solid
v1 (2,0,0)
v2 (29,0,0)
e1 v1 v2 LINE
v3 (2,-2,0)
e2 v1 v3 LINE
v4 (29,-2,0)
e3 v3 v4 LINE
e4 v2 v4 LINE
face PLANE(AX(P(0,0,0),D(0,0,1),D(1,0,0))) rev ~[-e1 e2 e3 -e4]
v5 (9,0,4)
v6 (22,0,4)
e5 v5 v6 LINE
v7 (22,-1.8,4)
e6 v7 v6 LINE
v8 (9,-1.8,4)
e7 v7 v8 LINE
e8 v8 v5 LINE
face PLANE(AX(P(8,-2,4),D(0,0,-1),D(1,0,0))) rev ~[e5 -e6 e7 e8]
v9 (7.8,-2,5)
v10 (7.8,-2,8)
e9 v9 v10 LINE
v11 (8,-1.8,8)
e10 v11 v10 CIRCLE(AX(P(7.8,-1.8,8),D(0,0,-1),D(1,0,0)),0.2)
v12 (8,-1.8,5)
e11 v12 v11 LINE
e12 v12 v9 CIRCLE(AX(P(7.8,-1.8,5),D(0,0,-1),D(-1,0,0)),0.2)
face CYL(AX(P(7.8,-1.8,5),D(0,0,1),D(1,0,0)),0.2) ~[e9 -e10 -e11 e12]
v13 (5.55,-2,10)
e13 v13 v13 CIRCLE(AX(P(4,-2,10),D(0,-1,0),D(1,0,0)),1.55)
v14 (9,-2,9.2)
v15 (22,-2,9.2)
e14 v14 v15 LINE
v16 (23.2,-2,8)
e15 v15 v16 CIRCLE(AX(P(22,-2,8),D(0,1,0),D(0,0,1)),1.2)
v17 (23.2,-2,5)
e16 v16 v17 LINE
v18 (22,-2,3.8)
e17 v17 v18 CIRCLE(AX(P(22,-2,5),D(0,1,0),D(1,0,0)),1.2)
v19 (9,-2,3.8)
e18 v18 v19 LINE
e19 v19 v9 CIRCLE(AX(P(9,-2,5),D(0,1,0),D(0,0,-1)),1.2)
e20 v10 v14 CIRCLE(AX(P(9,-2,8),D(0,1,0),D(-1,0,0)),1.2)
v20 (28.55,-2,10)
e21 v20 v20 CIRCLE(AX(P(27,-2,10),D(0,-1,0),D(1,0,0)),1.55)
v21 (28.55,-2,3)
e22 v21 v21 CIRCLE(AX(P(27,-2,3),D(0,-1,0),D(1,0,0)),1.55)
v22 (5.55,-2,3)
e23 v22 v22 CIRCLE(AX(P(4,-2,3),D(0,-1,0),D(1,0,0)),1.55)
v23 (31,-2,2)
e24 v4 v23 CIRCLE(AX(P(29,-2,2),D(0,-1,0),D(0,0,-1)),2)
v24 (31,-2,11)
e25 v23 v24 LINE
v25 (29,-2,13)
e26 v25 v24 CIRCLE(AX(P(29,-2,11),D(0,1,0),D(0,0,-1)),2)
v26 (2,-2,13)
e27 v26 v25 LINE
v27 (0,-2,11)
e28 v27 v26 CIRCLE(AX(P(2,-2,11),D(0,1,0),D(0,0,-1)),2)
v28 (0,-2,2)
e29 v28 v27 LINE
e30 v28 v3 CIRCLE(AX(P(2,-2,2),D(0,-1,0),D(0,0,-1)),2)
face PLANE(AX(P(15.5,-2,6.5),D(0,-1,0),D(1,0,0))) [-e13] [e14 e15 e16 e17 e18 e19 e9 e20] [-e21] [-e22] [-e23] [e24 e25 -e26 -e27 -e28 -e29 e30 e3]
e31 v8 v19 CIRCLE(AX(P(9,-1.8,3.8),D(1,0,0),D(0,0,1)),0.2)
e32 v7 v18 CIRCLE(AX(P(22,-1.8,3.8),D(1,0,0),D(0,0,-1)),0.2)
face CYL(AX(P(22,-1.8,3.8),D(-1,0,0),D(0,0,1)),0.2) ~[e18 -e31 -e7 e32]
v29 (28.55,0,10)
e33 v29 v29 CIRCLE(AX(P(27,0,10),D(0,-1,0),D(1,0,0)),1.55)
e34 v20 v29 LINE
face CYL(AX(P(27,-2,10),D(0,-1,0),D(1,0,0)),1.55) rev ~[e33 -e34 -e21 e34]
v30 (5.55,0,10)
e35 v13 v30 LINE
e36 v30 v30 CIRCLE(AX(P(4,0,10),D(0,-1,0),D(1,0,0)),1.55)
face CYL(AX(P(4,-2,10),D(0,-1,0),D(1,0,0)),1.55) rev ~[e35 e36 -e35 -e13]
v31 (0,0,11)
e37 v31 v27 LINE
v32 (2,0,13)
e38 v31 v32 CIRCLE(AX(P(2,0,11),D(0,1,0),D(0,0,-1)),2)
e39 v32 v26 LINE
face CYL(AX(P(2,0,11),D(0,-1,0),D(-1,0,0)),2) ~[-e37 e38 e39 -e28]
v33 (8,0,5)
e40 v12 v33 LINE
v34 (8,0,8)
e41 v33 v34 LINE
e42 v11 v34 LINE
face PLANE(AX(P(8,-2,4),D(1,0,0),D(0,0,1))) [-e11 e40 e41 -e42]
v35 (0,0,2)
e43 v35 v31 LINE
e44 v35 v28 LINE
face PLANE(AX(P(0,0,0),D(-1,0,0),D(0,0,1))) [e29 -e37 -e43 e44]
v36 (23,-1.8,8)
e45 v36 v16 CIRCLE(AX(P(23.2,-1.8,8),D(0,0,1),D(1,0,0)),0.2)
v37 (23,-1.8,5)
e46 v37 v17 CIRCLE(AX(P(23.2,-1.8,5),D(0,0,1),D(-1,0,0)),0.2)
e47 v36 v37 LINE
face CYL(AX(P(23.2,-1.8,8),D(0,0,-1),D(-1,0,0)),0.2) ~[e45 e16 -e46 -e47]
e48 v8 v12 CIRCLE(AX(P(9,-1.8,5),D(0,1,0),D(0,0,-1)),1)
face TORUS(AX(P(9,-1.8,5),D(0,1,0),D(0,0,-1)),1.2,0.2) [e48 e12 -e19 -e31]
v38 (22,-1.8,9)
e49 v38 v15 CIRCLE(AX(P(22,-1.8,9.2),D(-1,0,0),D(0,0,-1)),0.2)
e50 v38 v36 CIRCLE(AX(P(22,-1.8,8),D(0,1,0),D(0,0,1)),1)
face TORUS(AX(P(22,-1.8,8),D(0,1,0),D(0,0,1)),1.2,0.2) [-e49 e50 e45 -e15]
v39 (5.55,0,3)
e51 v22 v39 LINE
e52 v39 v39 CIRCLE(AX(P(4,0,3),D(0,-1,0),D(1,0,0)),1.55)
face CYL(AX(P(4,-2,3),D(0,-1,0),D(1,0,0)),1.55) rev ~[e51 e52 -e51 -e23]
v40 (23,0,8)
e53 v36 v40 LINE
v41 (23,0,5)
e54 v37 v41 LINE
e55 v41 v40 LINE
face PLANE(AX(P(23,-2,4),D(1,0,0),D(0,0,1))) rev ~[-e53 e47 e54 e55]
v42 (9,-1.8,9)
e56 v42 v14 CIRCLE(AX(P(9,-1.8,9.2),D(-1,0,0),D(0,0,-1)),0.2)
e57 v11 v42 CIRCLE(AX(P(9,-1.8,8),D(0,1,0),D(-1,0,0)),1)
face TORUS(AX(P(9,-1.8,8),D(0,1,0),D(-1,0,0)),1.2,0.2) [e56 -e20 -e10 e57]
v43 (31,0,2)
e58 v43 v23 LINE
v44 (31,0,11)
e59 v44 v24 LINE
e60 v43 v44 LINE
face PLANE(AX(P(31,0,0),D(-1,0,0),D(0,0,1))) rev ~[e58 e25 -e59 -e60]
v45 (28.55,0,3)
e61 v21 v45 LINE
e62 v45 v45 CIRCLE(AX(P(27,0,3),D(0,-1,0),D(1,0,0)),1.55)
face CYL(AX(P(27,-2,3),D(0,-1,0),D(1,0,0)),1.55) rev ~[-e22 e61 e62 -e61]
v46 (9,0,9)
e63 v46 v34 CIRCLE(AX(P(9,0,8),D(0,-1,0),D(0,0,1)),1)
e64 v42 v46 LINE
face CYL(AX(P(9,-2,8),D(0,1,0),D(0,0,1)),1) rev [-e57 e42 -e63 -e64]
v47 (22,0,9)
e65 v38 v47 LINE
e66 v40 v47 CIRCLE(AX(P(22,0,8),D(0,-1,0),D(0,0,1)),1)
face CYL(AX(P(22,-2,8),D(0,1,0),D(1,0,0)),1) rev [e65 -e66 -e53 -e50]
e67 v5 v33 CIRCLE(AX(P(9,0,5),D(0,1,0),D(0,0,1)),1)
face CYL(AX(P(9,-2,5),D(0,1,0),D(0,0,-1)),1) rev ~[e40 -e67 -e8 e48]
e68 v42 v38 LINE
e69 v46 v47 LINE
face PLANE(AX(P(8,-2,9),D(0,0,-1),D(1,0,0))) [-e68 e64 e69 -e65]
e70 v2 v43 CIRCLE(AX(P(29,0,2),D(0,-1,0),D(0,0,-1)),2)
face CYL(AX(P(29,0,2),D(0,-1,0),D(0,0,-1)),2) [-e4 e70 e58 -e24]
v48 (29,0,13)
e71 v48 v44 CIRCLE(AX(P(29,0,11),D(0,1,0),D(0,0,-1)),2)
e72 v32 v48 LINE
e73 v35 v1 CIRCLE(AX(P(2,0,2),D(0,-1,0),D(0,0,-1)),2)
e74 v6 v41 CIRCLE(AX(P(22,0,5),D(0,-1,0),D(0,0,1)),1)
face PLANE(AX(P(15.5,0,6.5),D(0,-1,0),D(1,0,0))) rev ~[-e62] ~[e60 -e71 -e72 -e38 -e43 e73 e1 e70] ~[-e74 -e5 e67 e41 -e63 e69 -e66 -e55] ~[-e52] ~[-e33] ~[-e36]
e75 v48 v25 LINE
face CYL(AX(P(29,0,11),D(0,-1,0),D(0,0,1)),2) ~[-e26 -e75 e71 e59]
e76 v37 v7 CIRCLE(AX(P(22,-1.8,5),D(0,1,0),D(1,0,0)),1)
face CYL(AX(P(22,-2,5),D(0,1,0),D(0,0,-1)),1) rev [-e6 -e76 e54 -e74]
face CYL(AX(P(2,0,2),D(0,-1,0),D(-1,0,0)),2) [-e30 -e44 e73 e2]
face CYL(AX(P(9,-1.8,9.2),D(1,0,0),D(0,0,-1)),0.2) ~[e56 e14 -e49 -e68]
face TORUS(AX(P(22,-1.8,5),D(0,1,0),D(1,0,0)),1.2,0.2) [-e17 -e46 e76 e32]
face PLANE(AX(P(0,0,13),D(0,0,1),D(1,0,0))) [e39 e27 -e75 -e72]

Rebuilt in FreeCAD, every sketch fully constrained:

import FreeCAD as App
import Part
import Sketcher

V = App.Vector


def edges_at(feature, points):
    """Names of the edges that pass closest to the given points."""
    edges = feature.Shape.Edges
    near = lambda p: min(range(len(edges)), key=lambda i: edges[i].distToShape(Part.Vertex(*p))[0])
    return sorted({f"Edge{near(p) + 1}" for p in points})

doc = App.newDocument("Part")
body = doc.addObject("PartDesign::Body", "Body")

# Sketch on XZ plane
sketch1 = body.newObject("Sketcher::SketchObject", "Sketch")
sketch1.AttachmentSupport = (doc.getObject("XZ_Plane"), [""])
sketch1.MapMode = "FlatFace"
sketch1.addGeometry([
    Part.LineSegment(V(0, 13, 0), V(0, 0, 0)),
    Part.LineSegment(V(0, 0, 0), V(31, 0, 0)),
    Part.LineSegment(V(31, 0, 0), V(31, 13, 0)),
    Part.LineSegment(V(31, 13, 0), V(0, 13, 0)),
], False)
sketch1.addConstraint([
    Sketcher.Constraint("Coincident", 0, 2, 1, 1),
    Sketcher.Constraint("Coincident", 1, 2, 2, 1),
    Sketcher.Constraint("Coincident", 2, 2, 3, 1),
    Sketcher.Constraint("Coincident", 3, 2, 0, 1),
    Sketcher.Constraint("Vertical", 0),
    Sketcher.Constraint("Horizontal", 1),
    Sketcher.Constraint("Vertical", 2),
    Sketcher.Constraint("Horizontal", 3),
    Sketcher.Constraint("Coincident", 0, 2, -1, 1),
    Sketcher.Constraint("DistanceX", 1, 1, 1, 2, 31.0),
    Sketcher.Constraint("DistanceY", 0, 2, 0, 1, 13.0),
])
pad1 = body.newObject("PartDesign::Pad", "Pad")
pad1.Profile = sketch1
pad1.Length = 2

# Sketch on XZ plane
sketch2 = body.newObject("Sketcher::SketchObject", "Sketch001")
sketch2.AttachmentSupport = (doc.getObject("XZ_Plane"), [""])
sketch2.MapMode = "FlatFace"
sketch2.AttachmentOffset = App.Placement(V(0, 0, 2), App.Rotation())
sketch2.addGeometry([
    Part.Circle(V(4, 10, 0), V(0, 0, 1), 1.55),
    Part.Circle(V(4, 3, 0), V(0, 0, 1), 1.55),
    Part.Circle(V(27, 10, 0), V(0, 0, 1), 1.55),
    Part.Circle(V(27, 3, 0), V(0, 0, 1), 1.55),
], False)
sketch2.addConstraint([
    Sketcher.Constraint("Equal", 0, 1),
    Sketcher.Constraint("Equal", 1, 2),
    Sketcher.Constraint("Equal", 2, 3),
    Sketcher.Constraint("Horizontal", 0, 3, 2, 3),
    Sketcher.Constraint("Horizontal", 1, 3, 3, 3),
    Sketcher.Constraint("Vertical", 0, 3, 1, 3),
    Sketcher.Constraint("Vertical", 2, 3, 3, 3),
    Sketcher.Constraint("Diameter", 0, 3.1),
    Sketcher.Constraint("DistanceX", -1, 1, 0, 3, 4.0),
    Sketcher.Constraint("DistanceY", -1, 1, 0, 3, 10.0),
    Sketcher.Constraint("DistanceY", -1, 1, 1, 3, 3.0),
    Sketcher.Constraint("DistanceX", -1, 1, 2, 3, 27.0),
])
pocket1 = body.newObject("PartDesign::Pocket", "Pocket")
pocket1.Profile = sketch2
pocket1.Length = 25
doc.recompute()

fillet = body.newObject("PartDesign::Fillet", "Fillet")
fillet.Base = (pocket1, edges_at(pocket1, [
    (31, -1, 13),
    (31, -1, 0),
    (0, -1, 0),
    (0, -1, 13),
]))
fillet.Radius = 2

# Sketch on XZ plane
sketch3 = body.newObject("Sketcher::SketchObject", "Sketch002")
sketch3.AttachmentSupport = (doc.getObject("XZ_Plane"), [""])
sketch3.MapMode = "FlatFace"
sketch3.AttachmentOffset = App.Placement(V(0, 0, 2), App.Rotation())
sketch3.addGeometry([
    Part.LineSegment(V(8, 9, 0), V(8, 4, 0)),
    Part.LineSegment(V(8, 4, 0), V(23, 4, 0)),
    Part.LineSegment(V(23, 4, 0), V(23, 9, 0)),
    Part.LineSegment(V(23, 9, 0), V(8, 9, 0)),
], False)
sketch3.addConstraint([
    Sketcher.Constraint("Coincident", 0, 2, 1, 1),
    Sketcher.Constraint("Coincident", 1, 2, 2, 1),
    Sketcher.Constraint("Coincident", 2, 2, 3, 1),
    Sketcher.Constraint("Coincident", 3, 2, 0, 1),
    Sketcher.Constraint("Vertical", 0),
    Sketcher.Constraint("Horizontal", 1),
    Sketcher.Constraint("Vertical", 2),
    Sketcher.Constraint("Horizontal", 3),
    Sketcher.Constraint("DistanceX", 1, 1, 1, 2, 15.0),
    Sketcher.Constraint("DistanceY", 0, 2, 0, 1, 5.0),
    Sketcher.Constraint("DistanceX", -1, 1, 0, 2, 8.0),
    Sketcher.Constraint("DistanceY", -1, 1, 0, 2, 4.0),
])
pocket2 = body.newObject("PartDesign::Pocket", "Pocket001")
pocket2.Profile = sketch3
pocket2.Length = 25
doc.recompute()

fillet2 = body.newObject("PartDesign::Fillet", "Fillet001")
fillet2.Base = (pocket2, edges_at(pocket2, [
    (8, -1, 9),
    (8, -1, 4),
    (23, -1, 9),
    (23, -1, 4),
]))
fillet2.Radius = 1
doc.recompute()

fillet3 = body.newObject("PartDesign::Fillet", "Fillet002")
fillet3.Base = (fillet2, edges_at(fillet2, [
    (15.5, -2, 9),
    (22.707, -2, 8.707),
    (23, -2, 6.5),
    (22.707, -2, 4.293),
    (15.5, -2, 4),
    (8.293, -2, 4.293),
    (8, -2, 6.5),
    (8.293, -2, 8.707),
]))
fillet3.Radius = 0.2

doc.recompute()
